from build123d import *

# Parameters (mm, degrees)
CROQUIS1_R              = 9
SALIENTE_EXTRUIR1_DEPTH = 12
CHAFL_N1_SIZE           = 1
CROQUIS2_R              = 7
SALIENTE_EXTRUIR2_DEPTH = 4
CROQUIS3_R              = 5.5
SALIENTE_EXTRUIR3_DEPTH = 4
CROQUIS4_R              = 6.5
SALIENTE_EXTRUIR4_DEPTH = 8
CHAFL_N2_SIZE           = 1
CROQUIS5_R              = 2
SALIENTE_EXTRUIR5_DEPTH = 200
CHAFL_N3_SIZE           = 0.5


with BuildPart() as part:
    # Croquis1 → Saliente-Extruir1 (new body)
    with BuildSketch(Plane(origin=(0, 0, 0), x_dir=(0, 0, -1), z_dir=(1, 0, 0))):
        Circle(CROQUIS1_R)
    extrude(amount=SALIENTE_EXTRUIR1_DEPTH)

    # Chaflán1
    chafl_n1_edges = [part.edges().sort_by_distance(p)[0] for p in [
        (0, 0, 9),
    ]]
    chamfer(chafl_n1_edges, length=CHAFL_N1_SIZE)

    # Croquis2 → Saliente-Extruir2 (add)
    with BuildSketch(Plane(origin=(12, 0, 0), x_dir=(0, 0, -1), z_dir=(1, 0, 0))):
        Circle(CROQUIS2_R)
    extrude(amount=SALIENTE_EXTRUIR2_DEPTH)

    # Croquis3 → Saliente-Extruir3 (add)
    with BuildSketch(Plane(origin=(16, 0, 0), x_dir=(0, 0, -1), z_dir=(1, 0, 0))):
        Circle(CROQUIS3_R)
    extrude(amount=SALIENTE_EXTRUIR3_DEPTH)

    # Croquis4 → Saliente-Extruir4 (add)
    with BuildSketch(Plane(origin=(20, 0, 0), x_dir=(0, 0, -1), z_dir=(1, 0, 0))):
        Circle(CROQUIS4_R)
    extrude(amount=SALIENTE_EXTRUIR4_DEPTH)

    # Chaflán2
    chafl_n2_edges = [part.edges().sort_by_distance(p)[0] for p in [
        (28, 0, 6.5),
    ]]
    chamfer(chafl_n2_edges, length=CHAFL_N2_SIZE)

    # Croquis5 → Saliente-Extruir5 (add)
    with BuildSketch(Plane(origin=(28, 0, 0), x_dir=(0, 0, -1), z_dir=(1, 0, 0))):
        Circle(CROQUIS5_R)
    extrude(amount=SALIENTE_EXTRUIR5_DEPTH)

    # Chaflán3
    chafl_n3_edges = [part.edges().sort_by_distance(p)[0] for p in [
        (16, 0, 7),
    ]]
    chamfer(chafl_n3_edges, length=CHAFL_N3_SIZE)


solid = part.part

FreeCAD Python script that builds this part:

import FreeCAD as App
import Part
import Sketcher
from FreeCAD import Vector
Q = App.Units.Quantity


def edges_at(feature, points):
    """Names of the edges that pass closest to the given points."""
    edges = feature.Shape.Edges
    near = lambda p: min(range(len(edges)), key=lambda i: edges[i].distToShape(Part.Vertex(*p))[0])
    return sorted({f"Edge{near(p) + 1}" for p in points})

doc = App.newDocument("Part")
body = doc.addObject("PartDesign::Body", "Body")

sketch1 = body.newObject("Sketcher::SketchObject", "Sketch")
sketch1.AttachmentSupport = (doc.getObject("YZ_Plane"), [""])
sketch1.MapMode = "FlatFace"
sketch1.addGeometry(Part.Circle(Vector(0, 0, 0), Vector(0, 0, 1), 9), False)
sketch1.addConstraint([
    Sketcher.Constraint("Coincident", 0, 3, -1, 1),
    Sketcher.Constraint("Diameter", 0, Q("18 mm")),
])
pad1 = body.newObject("PartDesign::Pad", "Pad")
pad1.Profile = sketch1
pad1.Length = 12
doc.recompute()

chamfer = body.newObject("PartDesign::Chamfer", "Chamfer")
chamfer.Base = (pad1, edges_at(pad1, [(0, 0, 9)]))
chamfer.Size = 1

sketch2 = body.newObject("Sketcher::SketchObject", "Sketch001")
sketch2.AttachmentSupport = (doc.getObject("YZ_Plane"), [""])
sketch2.MapMode = "FlatFace"
sketch2.AttachmentOffset = App.Placement(Vector(0, 0, 12), App.Rotation())
sketch2.addGeometry(Part.Circle(Vector(0, 0, 0), Vector(0, 0, 1), 7), False)
sketch2.addConstraint([
    Sketcher.Constraint("Coincident", 0, 3, -1, 1),
    Sketcher.Constraint("Diameter", 0, Q("14 mm")),
])
pad2 = body.newObject("PartDesign::Pad", "Pad001")
pad2.Profile = sketch2
pad2.Length = 4

sketch3 = body.newObject("Sketcher::SketchObject", "Sketch002")
sketch3.AttachmentSupport = (doc.getObject("YZ_Plane"), [""])
sketch3.MapMode = "FlatFace"
sketch3.AttachmentOffset = App.Placement(Vector(0, 0, 16), App.Rotation())
sketch3.addGeometry(Part.Circle(Vector(0, 0, 0), Vector(0, 0, 1), 6), False)
sketch3.addConstraint([
    Sketcher.Constraint("Coincident", 0, 3, -1, 1),
    Sketcher.Constraint("Diameter", 0, Q("11 mm")),
])
pad3 = body.newObject("PartDesign::Pad", "Pad002")
pad3.Profile = sketch3
pad3.Length = 4

sketch4 = body.newObject("Sketcher::SketchObject", "Sketch003")
sketch4.AttachmentSupport = (doc.getObject("YZ_Plane"), [""])
sketch4.MapMode = "FlatFace"
sketch4.AttachmentOffset = App.Placement(Vector(0, 0, 20), App.Rotation())
sketch4.addGeometry(Part.Circle(Vector(0, 0, 0), Vector(0, 0, 1), 6), False)
sketch4.addConstraint([
    Sketcher.Constraint("Coincident", 0, 3, -1, 1),
    Sketcher.Constraint("Diameter", 0, Q("13 mm")),
])
pad4 = body.newObject("PartDesign::Pad", "Pad003")
pad4.Profile = sketch4
pad4.Length = 8
doc.recompute()

chamfer2 = body.newObject("PartDesign::Chamfer", "Chamfer001")
chamfer2.Base = (pad4, edges_at(pad4, [(28, 0, 6.5)]))
chamfer2.Size = 1

sketch5 = body.newObject("Sketcher::SketchObject", "Sketch004")
sketch5.AttachmentSupport = (doc.getObject("YZ_Plane"), [""])
sketch5.MapMode = "FlatFace"
sketch5.AttachmentOffset = App.Placement(Vector(0, 0, 28), App.Rotation())
sketch5.addGeometry(Part.Circle(Vector(0, 0, 0), Vector(0, 0, 1), 2), False)
sketch5.addConstraint([
    Sketcher.Constraint("Coincident", 0, 3, -1, 1),
    Sketcher.Constraint("Diameter", 0, Q("4 mm")),
])
pad5 = body.newObject("PartDesign::Pad", "Pad004")
pad5.Profile = sketch5
pad5.Length = 200
doc.recompute()

chamfer3 = body.newObject("PartDesign::Chamfer", "Chamfer002")
chamfer3.Base = (pad5, edges_at(pad5, [(16, 0, 7)]))
chamfer3.Size = 0.5

doc.recompute()
